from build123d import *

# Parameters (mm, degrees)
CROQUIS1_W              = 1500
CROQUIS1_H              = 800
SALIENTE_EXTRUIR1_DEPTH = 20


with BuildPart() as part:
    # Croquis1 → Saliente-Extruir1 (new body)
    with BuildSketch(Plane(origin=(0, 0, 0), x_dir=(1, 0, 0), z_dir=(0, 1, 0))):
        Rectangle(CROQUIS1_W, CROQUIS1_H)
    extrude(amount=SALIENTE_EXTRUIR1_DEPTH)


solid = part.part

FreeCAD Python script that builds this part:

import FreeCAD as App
import Part
import Sketcher

V = App.Vector
Q = App.Units.Quantity


def add_polygon(sketch, points):
    """Adds a closed chain of lines whose ends are joined by coincident constraints."""
    first, n = sketch.GeometryCount, len(points)
    for a, b in zip(points, points[1:] + points[:1]):
        sketch.addGeometry(Part.LineSegment(App.Vector(*a, 0), App.Vector(*b, 0)), False)
    for i in range(n):
        sketch.addConstraint(Sketcher.Constraint("Coincident", first + i, 2, first + (i + 1) % n, 1))

doc = App.newDocument("Part")
params = doc.addObject("Spreadsheet::Sheet", "Params")
for row, (alias, value) in enumerate([
    ("sketch1_width", "1500 mm"),
    ("sketch1_height", "800 mm"),
    ("pad1_length", "20 mm"),
], start=1):
    params.set(f"A{row}", alias)
    params.set(f"B{row}", "=" + value)
    params.setAlias(f"B{row}", alias)

body = doc.addObject("PartDesign::Body", "Body")

sketch1 = body.newObject("Sketcher::SketchObject", "Sketch")
sketch1.AttachmentSupport = (doc.getObject("XZ_Plane"), [""])
sketch1.MapMode = "FlatFace"
add_polygon(sketch1, [(-750, -400), (-750, 400), (750, 400), (750, -400)])
sketch1.addConstraint([
    Sketcher.Constraint("Vertical", 0),
    Sketcher.Constraint("Horizontal", 1),
    Sketcher.Constraint("Vertical", 2),
    Sketcher.Constraint("Horizontal", 3),
    Sketcher.Constraint("Symmetric", 0, 2, 2, 2, -1, 1),
    Sketcher.Constraint("DistanceX", 1, 1, 1, 2, Q("1500 mm")),
    Sketcher.Constraint("DistanceY", 0, 1, 0, 2, Q("800 mm")),
])
sketch1.setExpression("Constraints[9]", "Params.sketch1_width")
sketch1.setExpression("Constraints[10]", "Params.sketch1_height")
pad1 = body.newObject("PartDesign::Pad", "Pad")
pad1.Profile = sketch1
pad1.setExpression("Length", "Params.pad1_length")
pad1.Reversed = True

doc.recompute()
